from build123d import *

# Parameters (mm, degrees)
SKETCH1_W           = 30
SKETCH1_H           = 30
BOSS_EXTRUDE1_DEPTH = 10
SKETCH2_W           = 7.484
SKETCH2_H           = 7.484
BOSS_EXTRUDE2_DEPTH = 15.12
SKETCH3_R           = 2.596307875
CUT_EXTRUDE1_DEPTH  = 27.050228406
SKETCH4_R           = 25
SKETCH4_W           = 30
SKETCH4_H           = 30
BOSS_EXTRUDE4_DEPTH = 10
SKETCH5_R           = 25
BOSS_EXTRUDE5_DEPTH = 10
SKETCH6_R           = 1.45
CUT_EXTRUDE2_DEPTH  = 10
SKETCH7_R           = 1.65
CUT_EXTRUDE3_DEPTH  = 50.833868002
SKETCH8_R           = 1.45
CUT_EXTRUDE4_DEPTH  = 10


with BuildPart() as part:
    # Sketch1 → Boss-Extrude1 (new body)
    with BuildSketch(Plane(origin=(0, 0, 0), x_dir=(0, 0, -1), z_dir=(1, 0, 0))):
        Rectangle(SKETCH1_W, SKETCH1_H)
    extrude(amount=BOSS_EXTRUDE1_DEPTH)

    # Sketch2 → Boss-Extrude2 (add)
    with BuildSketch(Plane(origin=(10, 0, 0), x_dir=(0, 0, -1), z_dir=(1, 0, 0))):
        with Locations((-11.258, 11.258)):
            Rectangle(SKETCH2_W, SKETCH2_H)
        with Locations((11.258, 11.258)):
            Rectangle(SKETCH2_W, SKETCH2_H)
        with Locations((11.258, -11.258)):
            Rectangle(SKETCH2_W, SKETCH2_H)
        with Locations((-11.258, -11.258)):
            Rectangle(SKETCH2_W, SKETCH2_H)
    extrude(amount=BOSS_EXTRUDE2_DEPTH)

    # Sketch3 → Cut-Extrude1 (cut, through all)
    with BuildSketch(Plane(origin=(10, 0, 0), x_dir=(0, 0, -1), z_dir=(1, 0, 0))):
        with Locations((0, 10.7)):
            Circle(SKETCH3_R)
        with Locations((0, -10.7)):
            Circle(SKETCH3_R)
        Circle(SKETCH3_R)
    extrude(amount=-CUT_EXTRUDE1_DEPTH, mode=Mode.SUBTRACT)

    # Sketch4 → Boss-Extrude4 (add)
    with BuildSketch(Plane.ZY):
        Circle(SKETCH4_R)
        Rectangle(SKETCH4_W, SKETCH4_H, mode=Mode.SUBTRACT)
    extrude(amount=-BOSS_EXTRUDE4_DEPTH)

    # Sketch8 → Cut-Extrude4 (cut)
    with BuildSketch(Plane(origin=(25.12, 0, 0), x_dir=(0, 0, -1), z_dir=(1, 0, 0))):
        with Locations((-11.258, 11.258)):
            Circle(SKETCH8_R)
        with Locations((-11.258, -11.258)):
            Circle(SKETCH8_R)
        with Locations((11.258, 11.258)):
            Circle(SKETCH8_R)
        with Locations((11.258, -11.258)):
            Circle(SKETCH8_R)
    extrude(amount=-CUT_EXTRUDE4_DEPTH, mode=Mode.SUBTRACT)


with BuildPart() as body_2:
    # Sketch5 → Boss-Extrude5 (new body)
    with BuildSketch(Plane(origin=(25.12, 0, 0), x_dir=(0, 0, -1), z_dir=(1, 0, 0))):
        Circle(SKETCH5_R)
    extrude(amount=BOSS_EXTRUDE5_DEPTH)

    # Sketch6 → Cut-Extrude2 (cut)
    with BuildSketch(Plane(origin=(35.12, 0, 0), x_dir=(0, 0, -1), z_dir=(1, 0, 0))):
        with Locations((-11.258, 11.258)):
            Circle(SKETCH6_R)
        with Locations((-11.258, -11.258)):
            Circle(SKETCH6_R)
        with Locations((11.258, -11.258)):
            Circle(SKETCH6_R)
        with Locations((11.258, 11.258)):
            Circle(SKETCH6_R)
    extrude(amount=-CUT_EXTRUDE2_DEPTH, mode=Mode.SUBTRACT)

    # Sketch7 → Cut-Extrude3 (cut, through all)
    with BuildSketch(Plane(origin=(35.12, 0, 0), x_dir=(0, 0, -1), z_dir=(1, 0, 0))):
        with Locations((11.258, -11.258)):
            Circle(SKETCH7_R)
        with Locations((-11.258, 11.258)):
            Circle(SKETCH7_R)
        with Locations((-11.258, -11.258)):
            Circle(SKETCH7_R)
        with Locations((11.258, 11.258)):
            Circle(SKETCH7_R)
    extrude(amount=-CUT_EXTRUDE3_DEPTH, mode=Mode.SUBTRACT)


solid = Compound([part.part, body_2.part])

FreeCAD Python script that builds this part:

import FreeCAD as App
import Part
import Sketcher

V = App.Vector

doc = App.newDocument("Part")
body = doc.addObject("PartDesign::Body", "Body")

# Sketch on YZ plane
sketch1 = doc.addObject("Sketcher::SketchObject", "Sketch")
body.addObject(sketch1)
sketch1.AttachmentSupport = (doc.YZ_Plane, [""])
sketch1.MapMode = "FlatFace"
sketch1.addGeometry([
    Part.LineSegment(V(15, 15, 0), V(-15, 15, 0)),
    Part.LineSegment(V(-15, 15, 0), V(-15, -15, 0)),
    Part.LineSegment(V(-15, -15, 0), V(15, -15, 0)),
    Part.LineSegment(V(15, -15, 0), V(15, 15, 0)),
], False)
sketch1.addConstraint([
    Sketcher.Constraint("Coincident", 0, 2, 1, 1),
    Sketcher.Constraint("Coincident", 1, 2, 2, 1),
    Sketcher.Constraint("Coincident", 2, 2, 3, 1),
    Sketcher.Constraint("Coincident", 3, 2, 0, 1),
    Sketcher.Constraint("Horizontal", 0),
    Sketcher.Constraint("Vertical", 1),
    Sketcher.Constraint("Horizontal", 2),
    Sketcher.Constraint("Vertical", 3),
    Sketcher.Constraint("Symmetric", 0, 2, 2, 2, -1, 1),
    Sketcher.Constraint("Equal", 2, 1),
    Sketcher.Constraint("DistanceX", 0, 2, 0, 1, 30.0),
])
pad1 = doc.addObject("PartDesign::Pad", "Pad")
body.addObject(pad1)
pad1.Profile = sketch1
pad1.Length = 10

# Sketch on YZ plane
sketch2 = doc.addObject("Sketcher::SketchObject", "Sketch001")
body.addObject(sketch2)
sketch2.AttachmentSupport = (doc.YZ_Plane, [""])
sketch2.MapMode = "FlatFace"
sketch2.AttachmentOffset = App.Placement(V(0, 0, 10), App.Rotation())
sketch2.addGeometry([
    Part.LineSegment(V(15, 15, 0), V(8, 15, 0)),  # 0
    Part.LineSegment(V(8, 15, 0), V(8, 8, 0)),  # 1
    Part.LineSegment(V(8, 8, 0), V(15, 8, 0)),  # 2
    Part.LineSegment(V(15, 8, 0), V(15, 15, 0)),  # 3
    Part.LineSegment(V(15, -8, 0), V(8, -8, 0)),  # 4
    Part.LineSegment(V(8, -8, 0), V(8, -15, 0)),  # 5
    Part.LineSegment(V(8, -15, 0), V(15, -15, 0)),  # 6
    Part.LineSegment(V(15, -15, 0), V(15, -8, 0)),  # 7
    Part.LineSegment(V(-8, -8, 0), V(-15, -8, 0)),  # 8
    Part.LineSegment(V(-15, -8, 0), V(-15, -15, 0)),  # 9
    Part.LineSegment(V(-15, -15, 0), V(-8, -15, 0)),  # 10
    Part.LineSegment(V(-8, -15, 0), V(-8, -8, 0)),  # 11
    Part.LineSegment(V(-8, 15, 0), V(-15, 15, 0)),  # 12
    Part.LineSegment(V(-15, 15, 0), V(-15, 8, 0)),  # 13
    Part.LineSegment(V(-15, 8, 0), V(-8, 8, 0)),  # 14
    Part.LineSegment(V(-8, 8, 0), V(-8, 15, 0)),  # 15
], False)
sketch2.addConstraint([
    Sketcher.Constraint("Coincident", 0, 2, 1, 1),
    Sketcher.Constraint("Coincident", 1, 2, 2, 1),
    Sketcher.Constraint("Coincident", 2, 2, 3, 1),
    Sketcher.Constraint("Coincident", 3, 2, 0, 1),
    Sketcher.Constraint("Coincident", 4, 2, 5, 1),
    Sketcher.Constraint("Coincident", 5, 2, 6, 1),
    Sketcher.Constraint("Coincident", 6, 2, 7, 1),
    Sketcher.Constraint("Coincident", 7, 2, 4, 1),
    Sketcher.Constraint("Coincident", 8, 2, 9, 1),
    Sketcher.Constraint("Coincident", 9, 2, 10, 1),
    Sketcher.Constraint("Coincident", 10, 2, 11, 1),
    Sketcher.Constraint("Coincident", 11, 2, 8, 1),
    Sketcher.Constraint("Coincident", 12, 2, 13, 1),
    Sketcher.Constraint("Coincident", 13, 2, 14, 1),
    Sketcher.Constraint("Coincident", 14, 2, 15, 1),
    Sketcher.Constraint("Coincident", 15, 2, 12, 1),
    Sketcher.Constraint("Horizontal", 0),
    Sketcher.Constraint("Vertical", 1),
    Sketcher.Constraint("Horizontal", 2),
    Sketcher.Constraint("Vertical", 3),
    Sketcher.Constraint("Horizontal", 4),
    Sketcher.Constraint("Vertical", 5),
    Sketcher.Constraint("Horizontal", 6),
    Sketcher.Constraint("Vertical", 7),
    Sketcher.Constraint("Horizontal", 8),
    Sketcher.Constraint("Vertical", 9),
    Sketcher.Constraint("Horizontal", 10),
    Sketcher.Constraint("Vertical", 11),
    Sketcher.Constraint("Horizontal", 12),
    Sketcher.Constraint("Vertical", 13),
    Sketcher.Constraint("Horizontal", 14),
    Sketcher.Constraint("Vertical", 15),
    Sketcher.Constraint("Symmetric", 2, 2, 8, 2, -1, 1),
    Sketcher.Constraint("Symmetric", 0, 2, 10, 2, -1, 1),
    Sketcher.Constraint("Symmetric", 6, 2, 12, 2, -1, 1),
    Sketcher.Constraint("Symmetric", 4, 2, 14, 2, -1, 1),
    Sketcher.Constraint("Symmetric", 7, 2, 8, 2, -2),
    Sketcher.Constraint("Symmetric", 5, 2, 10, 2, -2),
    Sketcher.Constraint("Equal", 14, 1),
    Sketcher.Constraint("DistanceY", -1, 1, 0, 2, 15.0),
    Sketcher.Constraint("DistanceX", -1, 1, 2, 2, 15.0),
    Sketcher.Constraint("DistanceX", 0, 2, 0, 1, 7.484),
])
pad2 = doc.addObject("PartDesign::Pad", "Pad001")
body.addObject(pad2)
pad2.Profile = sketch2
pad2.Length = 15.12

# Sketch on YZ plane
sketch3 = doc.addObject("Sketcher::SketchObject", "Sketch002")
body.addObject(sketch3)
sketch3.AttachmentSupport = (doc.YZ_Plane, [""])
sketch3.MapMode = "FlatFace"
sketch3.AttachmentOffset = App.Placement(V(0, 0, 10), App.Rotation())
sketch3.addGeometry([
    Part.Circle(V(10.7, 0, 0), V(0, 0, 1), 2.6),
    Part.Circle(V(-10.7, 0, 0), V(0, 0, 1), 2.6),
    Part.Circle(V(0, 0, 0), V(0, 0, 1), 2.6),
], False)
sketch3.addConstraint([
    Sketcher.Constraint("Coincident", 2, 3, -1, 1),
    Sketcher.Constraint("Equal", 0, 1),
    Sketcher.Constraint("Equal", 1, 2),
    Sketcher.Constraint("Symmetric", 0, 3, 1, 3, -1, 1),
    Sketcher.Constraint("PointOnObject", 0, 3, -1),
    Sketcher.Constraint("DistanceX", -1, 1, 0, 3, 10.7),
    Sketcher.Constraint("Diameter", 0, 5.192616),
])
pocket1 = doc.addObject("PartDesign::Pocket", "Pocket")
body.addObject(pocket1)
pocket1.Profile = sketch3
pocket1.Type = "ThroughAll"

# Sketch on YZ plane
sketch4 = doc.addObject("Sketcher::SketchObject", "Sketch003")
body.addObject(sketch4)
sketch4.AttachmentSupport = (doc.YZ_Plane, [""])
sketch4.MapMode = "FlatFace"
sketch4.addGeometry([
    Part.Circle(V(0, 0, 0), V(0, 0, 1), 25),  # 0
    Part.LineSegment(V(-15, 15, 0), V(-15, -15, 0)),  # 1
    Part.LineSegment(V(-15, -15, 0), V(15, -15, 0)),  # 2
    Part.LineSegment(V(15, -15, 0), V(15, 15, 0)),  # 3
    Part.LineSegment(V(15, 15, 0), V(-15, 15, 0)),  # 4
], False)
sketch4.addConstraint([
    Sketcher.Constraint("Coincident", 1, 2, 2, 1),
    Sketcher.Constraint("Coincident", 2, 2, 3, 1),
    Sketcher.Constraint("Coincident", 3, 2, 4, 1),
    Sketcher.Constraint("Coincident", 4, 2, 1, 1),
    Sketcher.Constraint("Vertical", 1),
    Sketcher.Constraint("Horizontal", 2),
    Sketcher.Constraint("Vertical", 3),
    Sketcher.Constraint("Horizontal", 4),
    Sketcher.Constraint("Coincident", 0, 3, -1, 1),
    Sketcher.Constraint("Symmetric", 1, 2, 3, 2, -1, 1),
    Sketcher.Constraint("Equal", 4, 1),
    Sketcher.Constraint("Diameter", 0, 50.0),
    Sketcher.Constraint("DistanceX", 2, 1, 2, 2, 30.0),
])
pad3 = doc.addObject("PartDesign::Pad", "Pad002")
body.addObject(pad3)
pad3.Profile = sketch4
pad3.Length = 10

# Sketch on YZ plane
sketch5 = doc.addObject("Sketcher::SketchObject", "Sketch004")
body.addObject(sketch5)
sketch5.AttachmentSupport = (doc.YZ_Plane, [""])
sketch5.MapMode = "FlatFace"
sketch5.AttachmentOffset = App.Placement(V(0, 0, 25.12), App.Rotation())
sketch5.addGeometry([
    Part.Circle(V(11.3, 11.3, 0), V(0, 0, 1), 1.4),
    Part.Circle(V(-11.3, 11.3, 0), V(0, 0, 1), 1.4),
    Part.Circle(V(11.3, -11.3, 0), V(0, 0, 1), 1.4),
    Part.Circle(V(-11.3, -11.3, 0), V(0, 0, 1), 1.4),
], False)
sketch5.addConstraint([
    Sketcher.Constraint("Equal", 0, 1),
    Sketcher.Constraint("Equal", 1, 2),
    Sketcher.Constraint("Equal", 2, 3),
    Sketcher.Constraint("Symmetric", 1, 3, 2, 3, -1, 1),
    Sketcher.Constraint("Symmetric", 0, 3, 3, 3, -1, 1),
    Sketcher.Constraint("Symmetric", 0, 3, 1, 3, -2),
    Sketcher.Constraint("Diameter", 0, 2.9),
    Sketcher.Constraint("DistanceX", -1, 1, 0, 3, 11.258),
    Sketcher.Constraint("DistanceY", -1, 1, 0, 3, 11.258),
])
pocket2 = doc.addObject("PartDesign::Pocket", "Pocket001")
body.addObject(pocket2)
pocket2.Profile = sketch5
pocket2.Length = 10
body2 = doc.addObject("PartDesign::Body", "Body001")

# Sketch on YZ plane
sketch6 = doc.addObject("Sketcher::SketchObject", "Sketch005")
body2.addObject(sketch6)
sketch6.AttachmentSupport = (doc.getObject("YZ_Plane001"), [""])
sketch6.MapMode = "FlatFace"
sketch6.AttachmentOffset = App.Placement(V(0, 0, 25.12), App.Rotation())
sketch6.addGeometry(Part.Circle(V(0, 0, 0), V(0, 0, 1), 25), False)
sketch6.addConstraint([
    Sketcher.Constraint("Coincident", 0, 3, -1, 1),
    Sketcher.Constraint("Diameter", 0, 50.0),
])
pad4 = doc.addObject("PartDesign::Pad", "Pad003")
body2.addObject(pad4)
pad4.Profile = sketch6
pad4.Length = 10

# Sketch on YZ plane
sketch7 = doc.addObject("Sketcher::SketchObject", "Sketch006")
body2.addObject(sketch7)
sketch7.AttachmentSupport = (doc.getObject("YZ_Plane001"), [""])
sketch7.MapMode = "FlatFace"
sketch7.AttachmentOffset = App.Placement(V(0, 0, 35.12), App.Rotation())
sketch7.addGeometry([
    Part.Circle(V(11.3, 11.3, 0), V(0, 0, 1), 1.4),
    Part.Circle(V(-11.3, 11.3, 0), V(0, 0, 1), 1.4),
    Part.Circle(V(-11.3, -11.3, 0), V(0, 0, 1), 1.4),
    Part.Circle(V(11.3, -11.3, 0), V(0, 0, 1), 1.4),
], False)
sketch7.addConstraint([
    Sketcher.Constraint("Equal", 0, 1),
    Sketcher.Constraint("Equal", 1, 2),
    Sketcher.Constraint("Equal", 2, 3),
    Sketcher.Constraint("Symmetric", 0, 3, 2, 3, -1, 1),
    Sketcher.Constraint("Symmetric", 1, 3, 3, 3, -1, 1),
    Sketcher.Constraint("Symmetric", 0, 3, 1, 3, -2),
    Sketcher.Constraint("Diameter", 0, 2.9),
    Sketcher.Constraint("DistanceX", -1, 1, 0, 3, 11.258),
    Sketcher.Constraint("DistanceY", -1, 1, 0, 3, 11.258),
])
pocket3 = doc.addObject("PartDesign::Pocket", "Pocket002")
body2.addObject(pocket3)
pocket3.Profile = sketch7
pocket3.Length = 10

# Sketch on YZ plane
sketch8 = doc.addObject("Sketcher::SketchObject", "Sketch007")
body2.addObject(sketch8)
sketch8.AttachmentSupport = (doc.getObject("YZ_Plane001"), [""])
sketch8.MapMode = "FlatFace"
sketch8.AttachmentOffset = App.Placement(V(0, 0, 35.12), App.Rotation())
sketch8.addGeometry([
    Part.Circle(V(-11.3, -11.3, 0), V(0, 0, 1), 1.6),
    Part.Circle(V(11.3, 11.3, 0), V(0, 0, 1), 1.6),
    Part.Circle(V(-11.3, 11.3, 0), V(0, 0, 1), 1.6),
    Part.Circle(V(11.3, -11.3, 0), V(0, 0, 1), 1.6),
], False)
sketch8.addConstraint([
    Sketcher.Constraint("Equal", 0, 1),
    Sketcher.Constraint("Equal", 1, 2),
    Sketcher.Constraint("Equal", 2, 3),
    Sketcher.Constraint("Symmetric", 0, 3, 1, 3, -1, 1),
    Sketcher.Constraint("Symmetric", 2, 3, 3, 3, -1, 1),
    Sketcher.Constraint("Symmetric", 1, 3, 2, 3, -2),
    Sketcher.Constraint("Diameter", 0, 3.3),
    Sketcher.Constraint("DistanceX", 0, 3, -1, 1, 11.258),
    Sketcher.Constraint("DistanceY", 0, 3, -1, 1, 11.258),
])
pocket4 = doc.addObject("PartDesign::Pocket", "Pocket003")
body2.addObject(pocket4)
pocket4.Profile = sketch8
pocket4.Type = "ThroughAll"

doc.recompute()
